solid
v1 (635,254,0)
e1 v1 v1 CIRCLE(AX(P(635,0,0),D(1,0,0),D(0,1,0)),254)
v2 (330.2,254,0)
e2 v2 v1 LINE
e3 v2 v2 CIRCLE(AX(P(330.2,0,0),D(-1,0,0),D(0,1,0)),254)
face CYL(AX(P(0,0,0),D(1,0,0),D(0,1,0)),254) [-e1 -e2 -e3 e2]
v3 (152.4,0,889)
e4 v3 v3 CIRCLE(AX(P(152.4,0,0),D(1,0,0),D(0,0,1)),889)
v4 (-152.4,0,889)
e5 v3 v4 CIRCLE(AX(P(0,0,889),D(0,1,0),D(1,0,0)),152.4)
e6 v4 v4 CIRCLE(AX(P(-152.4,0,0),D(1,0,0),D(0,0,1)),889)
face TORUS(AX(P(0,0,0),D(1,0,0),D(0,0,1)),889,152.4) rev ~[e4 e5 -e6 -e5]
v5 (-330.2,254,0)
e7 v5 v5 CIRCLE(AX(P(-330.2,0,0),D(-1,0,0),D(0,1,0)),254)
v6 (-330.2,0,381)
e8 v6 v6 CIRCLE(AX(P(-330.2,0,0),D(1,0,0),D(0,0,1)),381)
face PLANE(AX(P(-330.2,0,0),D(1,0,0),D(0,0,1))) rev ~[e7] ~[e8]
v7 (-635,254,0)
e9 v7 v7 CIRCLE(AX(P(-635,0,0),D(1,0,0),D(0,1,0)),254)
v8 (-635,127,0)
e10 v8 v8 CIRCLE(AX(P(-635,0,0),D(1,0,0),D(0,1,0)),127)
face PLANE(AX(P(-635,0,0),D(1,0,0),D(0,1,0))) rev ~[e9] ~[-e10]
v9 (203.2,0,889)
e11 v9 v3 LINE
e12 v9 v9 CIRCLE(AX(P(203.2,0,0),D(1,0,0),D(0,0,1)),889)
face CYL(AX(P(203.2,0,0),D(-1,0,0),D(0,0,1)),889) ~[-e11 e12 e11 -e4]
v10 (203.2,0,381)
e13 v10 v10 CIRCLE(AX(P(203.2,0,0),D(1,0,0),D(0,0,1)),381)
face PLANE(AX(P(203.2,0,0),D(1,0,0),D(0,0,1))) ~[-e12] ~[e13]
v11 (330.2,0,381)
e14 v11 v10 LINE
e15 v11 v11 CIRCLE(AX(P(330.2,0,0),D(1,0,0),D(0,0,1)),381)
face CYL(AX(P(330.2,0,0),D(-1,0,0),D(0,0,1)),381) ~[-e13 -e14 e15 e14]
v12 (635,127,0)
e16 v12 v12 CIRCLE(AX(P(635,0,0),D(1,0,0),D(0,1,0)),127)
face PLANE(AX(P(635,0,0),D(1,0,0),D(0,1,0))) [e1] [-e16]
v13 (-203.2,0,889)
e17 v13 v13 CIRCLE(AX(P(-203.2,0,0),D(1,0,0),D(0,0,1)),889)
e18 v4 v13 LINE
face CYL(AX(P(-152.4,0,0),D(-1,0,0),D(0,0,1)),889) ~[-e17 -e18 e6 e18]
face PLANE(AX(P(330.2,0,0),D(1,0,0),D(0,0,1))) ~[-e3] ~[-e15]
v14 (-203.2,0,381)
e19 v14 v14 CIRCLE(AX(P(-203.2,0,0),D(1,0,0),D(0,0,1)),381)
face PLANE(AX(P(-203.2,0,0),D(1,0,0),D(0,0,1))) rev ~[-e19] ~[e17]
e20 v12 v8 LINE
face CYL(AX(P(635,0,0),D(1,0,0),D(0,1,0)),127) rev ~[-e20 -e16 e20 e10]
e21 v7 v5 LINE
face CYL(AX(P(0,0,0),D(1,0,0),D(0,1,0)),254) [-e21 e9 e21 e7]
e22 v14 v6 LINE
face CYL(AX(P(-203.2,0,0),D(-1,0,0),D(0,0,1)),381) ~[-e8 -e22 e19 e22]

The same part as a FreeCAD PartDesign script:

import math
import FreeCAD as App
import Part
import Sketcher
from FreeCAD import Vector
Q = App.Units.Quantity

doc = App.newDocument("Part")
body = doc.addObject("PartDesign::Body", "Body")

# Sketch on XZ plane
sketch1 = body.newObject("Sketcher::SketchObject", "Sketch")
sketch1.AttachmentSupport = (doc.getObject("XZ_Plane"), [""])
sketch1.MapMode = "FlatFace"
sketch1.addGeometry([
    Part.LineSegment(Vector(-330, 381, 0), Vector(-330, 254, 0)),  # 0
    Part.LineSegment(Vector(-330, 254, 0), Vector(330, 254, 0)),  # 1
    Part.LineSegment(Vector(330, 254, 0), Vector(330, 381, 0)),  # 2
    Part.LineSegment(Vector(330, 381, 0), Vector(203, 381, 0)),  # 3
    Part.LineSegment(Vector(203, 381, 0), Vector(203, 889, 0)),  # 4
    Part.LineSegment(Vector(203, 889, 0), Vector(152, 889, 0)),  # 5
    Part.ArcOfCircle(Part.Circle(Vector(0, 889, 0), Vector(0, 0, 1), 152), math.radians(180), math.radians(360)),  # 6
    Part.LineSegment(Vector(-152, 889, 0), Vector(-203, 889, 0)),  # 7
    Part.LineSegment(Vector(-203, 889, 0), Vector(-203, 381, 0)),  # 8
    Part.LineSegment(Vector(-203, 381, 0), Vector(-330, 381, 0)),  # 9
], False)
sketch1.addConstraint([
    Sketcher.Constraint("Coincident", 0, 2, 1, 1),
    Sketcher.Constraint("Coincident", 1, 2, 2, 1),
    Sketcher.Constraint("Coincident", 2, 2, 3, 1),
    Sketcher.Constraint("Coincident", 3, 2, 4, 1),
    Sketcher.Constraint("Coincident", 4, 2, 5, 1),
    Sketcher.Constraint("Coincident", 5, 2, 6, 2),
    Sketcher.Constraint("Coincident", 6, 1, 7, 1),
    Sketcher.Constraint("Coincident", 7, 2, 8, 1),
    Sketcher.Constraint("Coincident", 8, 2, 9, 1),
    Sketcher.Constraint("Coincident", 9, 2, 0, 1),
    Sketcher.Constraint("Vertical", 0),
    Sketcher.Constraint("Horizontal", 1),
    Sketcher.Constraint("Vertical", 2),
    Sketcher.Constraint("Horizontal", 3),
    Sketcher.Constraint("Vertical", 4),
    Sketcher.Constraint("Horizontal", 5),
    Sketcher.Constraint("Horizontal", 7),
    Sketcher.Constraint("Vertical", 8),
    Sketcher.Constraint("Horizontal", 9),
    Sketcher.Constraint("Symmetric", 5, 2, 6, 1, -2),
    Sketcher.Constraint("Symmetric", 3, 2, 8, 2, -2),
    Sketcher.Constraint("Horizontal", 6, 3, 4, 2),
    Sketcher.Constraint("Equal", 3, 9),
    Sketcher.Constraint("Equal", 9, 0),
    Sketcher.Constraint("Radius", 6, Q("6 in")),
    Sketcher.Constraint("DistanceX", 1, 1, 1, 2, Q("26 in")),
    Sketcher.Constraint("DistanceX", 3, 2, 3, 1, Q("5 in")),
    Sketcher.Constraint("DistanceY", 4, 1, 4, 2, Q("20 in")),
    Sketcher.Constraint("DistanceY", -1, 1, 6, 3, Q("35 in")),
])
revolution = body.newObject("PartDesign::Revolution", "Revolution")
revolution.Profile = sketch1
revolution.ReferenceAxis = (sketch1, ["H_Axis"])
revolution.Angle = 360

# Sketch on YZ plane
sketch2 = body.newObject("Sketcher::SketchObject", "Sketch001")
sketch2.AttachmentSupport = (doc.getObject("YZ_Plane"), [""])
sketch2.MapMode = "FlatFace"
sketch2.addGeometry(Part.Circle(Vector(0, 0, 0), Vector(0, 0, 1), 254), False)
sketch2.addConstraint([
    Sketcher.Constraint("Coincident", 0, 3, -1, 1),
    Sketcher.Constraint("Diameter", 0, Q("20 in")),
])
pad1 = body.newObject("PartDesign::Pad", "Pad")
pad1.Profile = sketch2
pad1.Length = Q("50 in")
pad1.Midplane = True

# Sketch on YZ plane
sketch3 = body.newObject("Sketcher::SketchObject", "Sketch002")
sketch3.AttachmentSupport = (doc.getObject("YZ_Plane"), [""])
sketch3.MapMode = "FlatFace"
sketch3.AttachmentOffset = App.Placement(Vector(0, 0, 25 * 25.4), App.Rotation())
sketch3.addGeometry(Part.Circle(Vector(0, 0, 0), Vector(0, 0, 1), 127), False)
sketch3.addConstraint([
    Sketcher.Constraint("Coincident", 0, 3, -1, 1),
    Sketcher.Constraint("Diameter", 0, Q("10 in")),
])
pocket1 = body.newObject("PartDesign::Pocket", "Pocket")
pocket1.Profile = sketch3
pocket1.Type = "ThroughAll"

doc.recompute()
